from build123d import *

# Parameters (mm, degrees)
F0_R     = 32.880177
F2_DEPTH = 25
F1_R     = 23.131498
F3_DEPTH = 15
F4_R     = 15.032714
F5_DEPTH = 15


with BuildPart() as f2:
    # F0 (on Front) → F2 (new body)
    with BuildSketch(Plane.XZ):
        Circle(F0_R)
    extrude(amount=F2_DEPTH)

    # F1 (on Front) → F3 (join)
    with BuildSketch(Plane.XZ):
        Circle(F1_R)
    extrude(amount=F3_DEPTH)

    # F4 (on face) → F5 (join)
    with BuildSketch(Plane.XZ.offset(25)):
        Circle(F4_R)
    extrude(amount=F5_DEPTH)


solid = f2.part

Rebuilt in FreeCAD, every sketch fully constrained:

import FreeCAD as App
import Part
import Sketcher

V = App.Vector

doc = App.newDocument("Part")
params = doc.addObject("Spreadsheet::Sheet", "Params")
for row, (alias, value) in enumerate([
    ("pad1_length", "25 mm"),
    ("pad2_length", "15 mm"),
    ("pad3_length", "15 mm"),
], start=1):
    params.set(f"A{row}", alias)
    params.set(f"B{row}", "=" + value)
    params.setAlias(f"B{row}", alias)

body = doc.addObject("PartDesign::Body", "Body")

sketch1 = doc.addObject("Sketcher::SketchObject", "Sketch")
body.addObject(sketch1)
sketch1.AttachmentSupport = (doc.XZ_Plane, [""])
sketch1.MapMode = "FlatFace"
sketch1.addGeometry(Part.Circle(V(0, 0, 0), V(0, 0, 1), 33), False)
sketch1.addConstraint([
    Sketcher.Constraint("Coincident", 0, 3, -1, 1),
    Sketcher.Constraint("Diameter", 0, 65.760354),
])
pad1 = doc.addObject("PartDesign::Pad", "Pad")
body.addObject(pad1)
pad1.Profile = sketch1
pad1.setExpression("Length", "Params.pad1_length")

sketch2 = doc.addObject("Sketcher::SketchObject", "Sketch001")
body.addObject(sketch2)
sketch2.AttachmentSupport = (doc.XZ_Plane, [""])
sketch2.MapMode = "FlatFace"
sketch2.addGeometry(Part.Circle(V(0, 0, 0), V(0, 0, 1), 23), False)
sketch2.addConstraint([
    Sketcher.Constraint("Coincident", 0, 3, -1, 1),
    Sketcher.Constraint("Diameter", 0, 46.262996),
])
pad2 = doc.addObject("PartDesign::Pad", "Pad001")
body.addObject(pad2)
pad2.Profile = sketch2
pad2.setExpression("Length", "Params.pad2_length")

sketch3 = doc.addObject("Sketcher::SketchObject", "Sketch002")
body.addObject(sketch3)
sketch3.AttachmentSupport = (doc.XZ_Plane, [""])
sketch3.MapMode = "FlatFace"
sketch3.AttachmentOffset = App.Placement(V(0, 0, 25), App.Rotation())
sketch3.addGeometry(Part.Circle(V(0, 0, 0), V(0, 0, 1), 15), False)
sketch3.addConstraint([
    Sketcher.Constraint("Coincident", 0, 3, -1, 1),
    Sketcher.Constraint("Diameter", 0, 30.065428),
])
pad3 = doc.addObject("PartDesign::Pad", "Pad002")
body.addObject(pad3)
pad3.Profile = sketch3
pad3.setExpression("Length", "Params.pad3_length")

doc.recompute()
